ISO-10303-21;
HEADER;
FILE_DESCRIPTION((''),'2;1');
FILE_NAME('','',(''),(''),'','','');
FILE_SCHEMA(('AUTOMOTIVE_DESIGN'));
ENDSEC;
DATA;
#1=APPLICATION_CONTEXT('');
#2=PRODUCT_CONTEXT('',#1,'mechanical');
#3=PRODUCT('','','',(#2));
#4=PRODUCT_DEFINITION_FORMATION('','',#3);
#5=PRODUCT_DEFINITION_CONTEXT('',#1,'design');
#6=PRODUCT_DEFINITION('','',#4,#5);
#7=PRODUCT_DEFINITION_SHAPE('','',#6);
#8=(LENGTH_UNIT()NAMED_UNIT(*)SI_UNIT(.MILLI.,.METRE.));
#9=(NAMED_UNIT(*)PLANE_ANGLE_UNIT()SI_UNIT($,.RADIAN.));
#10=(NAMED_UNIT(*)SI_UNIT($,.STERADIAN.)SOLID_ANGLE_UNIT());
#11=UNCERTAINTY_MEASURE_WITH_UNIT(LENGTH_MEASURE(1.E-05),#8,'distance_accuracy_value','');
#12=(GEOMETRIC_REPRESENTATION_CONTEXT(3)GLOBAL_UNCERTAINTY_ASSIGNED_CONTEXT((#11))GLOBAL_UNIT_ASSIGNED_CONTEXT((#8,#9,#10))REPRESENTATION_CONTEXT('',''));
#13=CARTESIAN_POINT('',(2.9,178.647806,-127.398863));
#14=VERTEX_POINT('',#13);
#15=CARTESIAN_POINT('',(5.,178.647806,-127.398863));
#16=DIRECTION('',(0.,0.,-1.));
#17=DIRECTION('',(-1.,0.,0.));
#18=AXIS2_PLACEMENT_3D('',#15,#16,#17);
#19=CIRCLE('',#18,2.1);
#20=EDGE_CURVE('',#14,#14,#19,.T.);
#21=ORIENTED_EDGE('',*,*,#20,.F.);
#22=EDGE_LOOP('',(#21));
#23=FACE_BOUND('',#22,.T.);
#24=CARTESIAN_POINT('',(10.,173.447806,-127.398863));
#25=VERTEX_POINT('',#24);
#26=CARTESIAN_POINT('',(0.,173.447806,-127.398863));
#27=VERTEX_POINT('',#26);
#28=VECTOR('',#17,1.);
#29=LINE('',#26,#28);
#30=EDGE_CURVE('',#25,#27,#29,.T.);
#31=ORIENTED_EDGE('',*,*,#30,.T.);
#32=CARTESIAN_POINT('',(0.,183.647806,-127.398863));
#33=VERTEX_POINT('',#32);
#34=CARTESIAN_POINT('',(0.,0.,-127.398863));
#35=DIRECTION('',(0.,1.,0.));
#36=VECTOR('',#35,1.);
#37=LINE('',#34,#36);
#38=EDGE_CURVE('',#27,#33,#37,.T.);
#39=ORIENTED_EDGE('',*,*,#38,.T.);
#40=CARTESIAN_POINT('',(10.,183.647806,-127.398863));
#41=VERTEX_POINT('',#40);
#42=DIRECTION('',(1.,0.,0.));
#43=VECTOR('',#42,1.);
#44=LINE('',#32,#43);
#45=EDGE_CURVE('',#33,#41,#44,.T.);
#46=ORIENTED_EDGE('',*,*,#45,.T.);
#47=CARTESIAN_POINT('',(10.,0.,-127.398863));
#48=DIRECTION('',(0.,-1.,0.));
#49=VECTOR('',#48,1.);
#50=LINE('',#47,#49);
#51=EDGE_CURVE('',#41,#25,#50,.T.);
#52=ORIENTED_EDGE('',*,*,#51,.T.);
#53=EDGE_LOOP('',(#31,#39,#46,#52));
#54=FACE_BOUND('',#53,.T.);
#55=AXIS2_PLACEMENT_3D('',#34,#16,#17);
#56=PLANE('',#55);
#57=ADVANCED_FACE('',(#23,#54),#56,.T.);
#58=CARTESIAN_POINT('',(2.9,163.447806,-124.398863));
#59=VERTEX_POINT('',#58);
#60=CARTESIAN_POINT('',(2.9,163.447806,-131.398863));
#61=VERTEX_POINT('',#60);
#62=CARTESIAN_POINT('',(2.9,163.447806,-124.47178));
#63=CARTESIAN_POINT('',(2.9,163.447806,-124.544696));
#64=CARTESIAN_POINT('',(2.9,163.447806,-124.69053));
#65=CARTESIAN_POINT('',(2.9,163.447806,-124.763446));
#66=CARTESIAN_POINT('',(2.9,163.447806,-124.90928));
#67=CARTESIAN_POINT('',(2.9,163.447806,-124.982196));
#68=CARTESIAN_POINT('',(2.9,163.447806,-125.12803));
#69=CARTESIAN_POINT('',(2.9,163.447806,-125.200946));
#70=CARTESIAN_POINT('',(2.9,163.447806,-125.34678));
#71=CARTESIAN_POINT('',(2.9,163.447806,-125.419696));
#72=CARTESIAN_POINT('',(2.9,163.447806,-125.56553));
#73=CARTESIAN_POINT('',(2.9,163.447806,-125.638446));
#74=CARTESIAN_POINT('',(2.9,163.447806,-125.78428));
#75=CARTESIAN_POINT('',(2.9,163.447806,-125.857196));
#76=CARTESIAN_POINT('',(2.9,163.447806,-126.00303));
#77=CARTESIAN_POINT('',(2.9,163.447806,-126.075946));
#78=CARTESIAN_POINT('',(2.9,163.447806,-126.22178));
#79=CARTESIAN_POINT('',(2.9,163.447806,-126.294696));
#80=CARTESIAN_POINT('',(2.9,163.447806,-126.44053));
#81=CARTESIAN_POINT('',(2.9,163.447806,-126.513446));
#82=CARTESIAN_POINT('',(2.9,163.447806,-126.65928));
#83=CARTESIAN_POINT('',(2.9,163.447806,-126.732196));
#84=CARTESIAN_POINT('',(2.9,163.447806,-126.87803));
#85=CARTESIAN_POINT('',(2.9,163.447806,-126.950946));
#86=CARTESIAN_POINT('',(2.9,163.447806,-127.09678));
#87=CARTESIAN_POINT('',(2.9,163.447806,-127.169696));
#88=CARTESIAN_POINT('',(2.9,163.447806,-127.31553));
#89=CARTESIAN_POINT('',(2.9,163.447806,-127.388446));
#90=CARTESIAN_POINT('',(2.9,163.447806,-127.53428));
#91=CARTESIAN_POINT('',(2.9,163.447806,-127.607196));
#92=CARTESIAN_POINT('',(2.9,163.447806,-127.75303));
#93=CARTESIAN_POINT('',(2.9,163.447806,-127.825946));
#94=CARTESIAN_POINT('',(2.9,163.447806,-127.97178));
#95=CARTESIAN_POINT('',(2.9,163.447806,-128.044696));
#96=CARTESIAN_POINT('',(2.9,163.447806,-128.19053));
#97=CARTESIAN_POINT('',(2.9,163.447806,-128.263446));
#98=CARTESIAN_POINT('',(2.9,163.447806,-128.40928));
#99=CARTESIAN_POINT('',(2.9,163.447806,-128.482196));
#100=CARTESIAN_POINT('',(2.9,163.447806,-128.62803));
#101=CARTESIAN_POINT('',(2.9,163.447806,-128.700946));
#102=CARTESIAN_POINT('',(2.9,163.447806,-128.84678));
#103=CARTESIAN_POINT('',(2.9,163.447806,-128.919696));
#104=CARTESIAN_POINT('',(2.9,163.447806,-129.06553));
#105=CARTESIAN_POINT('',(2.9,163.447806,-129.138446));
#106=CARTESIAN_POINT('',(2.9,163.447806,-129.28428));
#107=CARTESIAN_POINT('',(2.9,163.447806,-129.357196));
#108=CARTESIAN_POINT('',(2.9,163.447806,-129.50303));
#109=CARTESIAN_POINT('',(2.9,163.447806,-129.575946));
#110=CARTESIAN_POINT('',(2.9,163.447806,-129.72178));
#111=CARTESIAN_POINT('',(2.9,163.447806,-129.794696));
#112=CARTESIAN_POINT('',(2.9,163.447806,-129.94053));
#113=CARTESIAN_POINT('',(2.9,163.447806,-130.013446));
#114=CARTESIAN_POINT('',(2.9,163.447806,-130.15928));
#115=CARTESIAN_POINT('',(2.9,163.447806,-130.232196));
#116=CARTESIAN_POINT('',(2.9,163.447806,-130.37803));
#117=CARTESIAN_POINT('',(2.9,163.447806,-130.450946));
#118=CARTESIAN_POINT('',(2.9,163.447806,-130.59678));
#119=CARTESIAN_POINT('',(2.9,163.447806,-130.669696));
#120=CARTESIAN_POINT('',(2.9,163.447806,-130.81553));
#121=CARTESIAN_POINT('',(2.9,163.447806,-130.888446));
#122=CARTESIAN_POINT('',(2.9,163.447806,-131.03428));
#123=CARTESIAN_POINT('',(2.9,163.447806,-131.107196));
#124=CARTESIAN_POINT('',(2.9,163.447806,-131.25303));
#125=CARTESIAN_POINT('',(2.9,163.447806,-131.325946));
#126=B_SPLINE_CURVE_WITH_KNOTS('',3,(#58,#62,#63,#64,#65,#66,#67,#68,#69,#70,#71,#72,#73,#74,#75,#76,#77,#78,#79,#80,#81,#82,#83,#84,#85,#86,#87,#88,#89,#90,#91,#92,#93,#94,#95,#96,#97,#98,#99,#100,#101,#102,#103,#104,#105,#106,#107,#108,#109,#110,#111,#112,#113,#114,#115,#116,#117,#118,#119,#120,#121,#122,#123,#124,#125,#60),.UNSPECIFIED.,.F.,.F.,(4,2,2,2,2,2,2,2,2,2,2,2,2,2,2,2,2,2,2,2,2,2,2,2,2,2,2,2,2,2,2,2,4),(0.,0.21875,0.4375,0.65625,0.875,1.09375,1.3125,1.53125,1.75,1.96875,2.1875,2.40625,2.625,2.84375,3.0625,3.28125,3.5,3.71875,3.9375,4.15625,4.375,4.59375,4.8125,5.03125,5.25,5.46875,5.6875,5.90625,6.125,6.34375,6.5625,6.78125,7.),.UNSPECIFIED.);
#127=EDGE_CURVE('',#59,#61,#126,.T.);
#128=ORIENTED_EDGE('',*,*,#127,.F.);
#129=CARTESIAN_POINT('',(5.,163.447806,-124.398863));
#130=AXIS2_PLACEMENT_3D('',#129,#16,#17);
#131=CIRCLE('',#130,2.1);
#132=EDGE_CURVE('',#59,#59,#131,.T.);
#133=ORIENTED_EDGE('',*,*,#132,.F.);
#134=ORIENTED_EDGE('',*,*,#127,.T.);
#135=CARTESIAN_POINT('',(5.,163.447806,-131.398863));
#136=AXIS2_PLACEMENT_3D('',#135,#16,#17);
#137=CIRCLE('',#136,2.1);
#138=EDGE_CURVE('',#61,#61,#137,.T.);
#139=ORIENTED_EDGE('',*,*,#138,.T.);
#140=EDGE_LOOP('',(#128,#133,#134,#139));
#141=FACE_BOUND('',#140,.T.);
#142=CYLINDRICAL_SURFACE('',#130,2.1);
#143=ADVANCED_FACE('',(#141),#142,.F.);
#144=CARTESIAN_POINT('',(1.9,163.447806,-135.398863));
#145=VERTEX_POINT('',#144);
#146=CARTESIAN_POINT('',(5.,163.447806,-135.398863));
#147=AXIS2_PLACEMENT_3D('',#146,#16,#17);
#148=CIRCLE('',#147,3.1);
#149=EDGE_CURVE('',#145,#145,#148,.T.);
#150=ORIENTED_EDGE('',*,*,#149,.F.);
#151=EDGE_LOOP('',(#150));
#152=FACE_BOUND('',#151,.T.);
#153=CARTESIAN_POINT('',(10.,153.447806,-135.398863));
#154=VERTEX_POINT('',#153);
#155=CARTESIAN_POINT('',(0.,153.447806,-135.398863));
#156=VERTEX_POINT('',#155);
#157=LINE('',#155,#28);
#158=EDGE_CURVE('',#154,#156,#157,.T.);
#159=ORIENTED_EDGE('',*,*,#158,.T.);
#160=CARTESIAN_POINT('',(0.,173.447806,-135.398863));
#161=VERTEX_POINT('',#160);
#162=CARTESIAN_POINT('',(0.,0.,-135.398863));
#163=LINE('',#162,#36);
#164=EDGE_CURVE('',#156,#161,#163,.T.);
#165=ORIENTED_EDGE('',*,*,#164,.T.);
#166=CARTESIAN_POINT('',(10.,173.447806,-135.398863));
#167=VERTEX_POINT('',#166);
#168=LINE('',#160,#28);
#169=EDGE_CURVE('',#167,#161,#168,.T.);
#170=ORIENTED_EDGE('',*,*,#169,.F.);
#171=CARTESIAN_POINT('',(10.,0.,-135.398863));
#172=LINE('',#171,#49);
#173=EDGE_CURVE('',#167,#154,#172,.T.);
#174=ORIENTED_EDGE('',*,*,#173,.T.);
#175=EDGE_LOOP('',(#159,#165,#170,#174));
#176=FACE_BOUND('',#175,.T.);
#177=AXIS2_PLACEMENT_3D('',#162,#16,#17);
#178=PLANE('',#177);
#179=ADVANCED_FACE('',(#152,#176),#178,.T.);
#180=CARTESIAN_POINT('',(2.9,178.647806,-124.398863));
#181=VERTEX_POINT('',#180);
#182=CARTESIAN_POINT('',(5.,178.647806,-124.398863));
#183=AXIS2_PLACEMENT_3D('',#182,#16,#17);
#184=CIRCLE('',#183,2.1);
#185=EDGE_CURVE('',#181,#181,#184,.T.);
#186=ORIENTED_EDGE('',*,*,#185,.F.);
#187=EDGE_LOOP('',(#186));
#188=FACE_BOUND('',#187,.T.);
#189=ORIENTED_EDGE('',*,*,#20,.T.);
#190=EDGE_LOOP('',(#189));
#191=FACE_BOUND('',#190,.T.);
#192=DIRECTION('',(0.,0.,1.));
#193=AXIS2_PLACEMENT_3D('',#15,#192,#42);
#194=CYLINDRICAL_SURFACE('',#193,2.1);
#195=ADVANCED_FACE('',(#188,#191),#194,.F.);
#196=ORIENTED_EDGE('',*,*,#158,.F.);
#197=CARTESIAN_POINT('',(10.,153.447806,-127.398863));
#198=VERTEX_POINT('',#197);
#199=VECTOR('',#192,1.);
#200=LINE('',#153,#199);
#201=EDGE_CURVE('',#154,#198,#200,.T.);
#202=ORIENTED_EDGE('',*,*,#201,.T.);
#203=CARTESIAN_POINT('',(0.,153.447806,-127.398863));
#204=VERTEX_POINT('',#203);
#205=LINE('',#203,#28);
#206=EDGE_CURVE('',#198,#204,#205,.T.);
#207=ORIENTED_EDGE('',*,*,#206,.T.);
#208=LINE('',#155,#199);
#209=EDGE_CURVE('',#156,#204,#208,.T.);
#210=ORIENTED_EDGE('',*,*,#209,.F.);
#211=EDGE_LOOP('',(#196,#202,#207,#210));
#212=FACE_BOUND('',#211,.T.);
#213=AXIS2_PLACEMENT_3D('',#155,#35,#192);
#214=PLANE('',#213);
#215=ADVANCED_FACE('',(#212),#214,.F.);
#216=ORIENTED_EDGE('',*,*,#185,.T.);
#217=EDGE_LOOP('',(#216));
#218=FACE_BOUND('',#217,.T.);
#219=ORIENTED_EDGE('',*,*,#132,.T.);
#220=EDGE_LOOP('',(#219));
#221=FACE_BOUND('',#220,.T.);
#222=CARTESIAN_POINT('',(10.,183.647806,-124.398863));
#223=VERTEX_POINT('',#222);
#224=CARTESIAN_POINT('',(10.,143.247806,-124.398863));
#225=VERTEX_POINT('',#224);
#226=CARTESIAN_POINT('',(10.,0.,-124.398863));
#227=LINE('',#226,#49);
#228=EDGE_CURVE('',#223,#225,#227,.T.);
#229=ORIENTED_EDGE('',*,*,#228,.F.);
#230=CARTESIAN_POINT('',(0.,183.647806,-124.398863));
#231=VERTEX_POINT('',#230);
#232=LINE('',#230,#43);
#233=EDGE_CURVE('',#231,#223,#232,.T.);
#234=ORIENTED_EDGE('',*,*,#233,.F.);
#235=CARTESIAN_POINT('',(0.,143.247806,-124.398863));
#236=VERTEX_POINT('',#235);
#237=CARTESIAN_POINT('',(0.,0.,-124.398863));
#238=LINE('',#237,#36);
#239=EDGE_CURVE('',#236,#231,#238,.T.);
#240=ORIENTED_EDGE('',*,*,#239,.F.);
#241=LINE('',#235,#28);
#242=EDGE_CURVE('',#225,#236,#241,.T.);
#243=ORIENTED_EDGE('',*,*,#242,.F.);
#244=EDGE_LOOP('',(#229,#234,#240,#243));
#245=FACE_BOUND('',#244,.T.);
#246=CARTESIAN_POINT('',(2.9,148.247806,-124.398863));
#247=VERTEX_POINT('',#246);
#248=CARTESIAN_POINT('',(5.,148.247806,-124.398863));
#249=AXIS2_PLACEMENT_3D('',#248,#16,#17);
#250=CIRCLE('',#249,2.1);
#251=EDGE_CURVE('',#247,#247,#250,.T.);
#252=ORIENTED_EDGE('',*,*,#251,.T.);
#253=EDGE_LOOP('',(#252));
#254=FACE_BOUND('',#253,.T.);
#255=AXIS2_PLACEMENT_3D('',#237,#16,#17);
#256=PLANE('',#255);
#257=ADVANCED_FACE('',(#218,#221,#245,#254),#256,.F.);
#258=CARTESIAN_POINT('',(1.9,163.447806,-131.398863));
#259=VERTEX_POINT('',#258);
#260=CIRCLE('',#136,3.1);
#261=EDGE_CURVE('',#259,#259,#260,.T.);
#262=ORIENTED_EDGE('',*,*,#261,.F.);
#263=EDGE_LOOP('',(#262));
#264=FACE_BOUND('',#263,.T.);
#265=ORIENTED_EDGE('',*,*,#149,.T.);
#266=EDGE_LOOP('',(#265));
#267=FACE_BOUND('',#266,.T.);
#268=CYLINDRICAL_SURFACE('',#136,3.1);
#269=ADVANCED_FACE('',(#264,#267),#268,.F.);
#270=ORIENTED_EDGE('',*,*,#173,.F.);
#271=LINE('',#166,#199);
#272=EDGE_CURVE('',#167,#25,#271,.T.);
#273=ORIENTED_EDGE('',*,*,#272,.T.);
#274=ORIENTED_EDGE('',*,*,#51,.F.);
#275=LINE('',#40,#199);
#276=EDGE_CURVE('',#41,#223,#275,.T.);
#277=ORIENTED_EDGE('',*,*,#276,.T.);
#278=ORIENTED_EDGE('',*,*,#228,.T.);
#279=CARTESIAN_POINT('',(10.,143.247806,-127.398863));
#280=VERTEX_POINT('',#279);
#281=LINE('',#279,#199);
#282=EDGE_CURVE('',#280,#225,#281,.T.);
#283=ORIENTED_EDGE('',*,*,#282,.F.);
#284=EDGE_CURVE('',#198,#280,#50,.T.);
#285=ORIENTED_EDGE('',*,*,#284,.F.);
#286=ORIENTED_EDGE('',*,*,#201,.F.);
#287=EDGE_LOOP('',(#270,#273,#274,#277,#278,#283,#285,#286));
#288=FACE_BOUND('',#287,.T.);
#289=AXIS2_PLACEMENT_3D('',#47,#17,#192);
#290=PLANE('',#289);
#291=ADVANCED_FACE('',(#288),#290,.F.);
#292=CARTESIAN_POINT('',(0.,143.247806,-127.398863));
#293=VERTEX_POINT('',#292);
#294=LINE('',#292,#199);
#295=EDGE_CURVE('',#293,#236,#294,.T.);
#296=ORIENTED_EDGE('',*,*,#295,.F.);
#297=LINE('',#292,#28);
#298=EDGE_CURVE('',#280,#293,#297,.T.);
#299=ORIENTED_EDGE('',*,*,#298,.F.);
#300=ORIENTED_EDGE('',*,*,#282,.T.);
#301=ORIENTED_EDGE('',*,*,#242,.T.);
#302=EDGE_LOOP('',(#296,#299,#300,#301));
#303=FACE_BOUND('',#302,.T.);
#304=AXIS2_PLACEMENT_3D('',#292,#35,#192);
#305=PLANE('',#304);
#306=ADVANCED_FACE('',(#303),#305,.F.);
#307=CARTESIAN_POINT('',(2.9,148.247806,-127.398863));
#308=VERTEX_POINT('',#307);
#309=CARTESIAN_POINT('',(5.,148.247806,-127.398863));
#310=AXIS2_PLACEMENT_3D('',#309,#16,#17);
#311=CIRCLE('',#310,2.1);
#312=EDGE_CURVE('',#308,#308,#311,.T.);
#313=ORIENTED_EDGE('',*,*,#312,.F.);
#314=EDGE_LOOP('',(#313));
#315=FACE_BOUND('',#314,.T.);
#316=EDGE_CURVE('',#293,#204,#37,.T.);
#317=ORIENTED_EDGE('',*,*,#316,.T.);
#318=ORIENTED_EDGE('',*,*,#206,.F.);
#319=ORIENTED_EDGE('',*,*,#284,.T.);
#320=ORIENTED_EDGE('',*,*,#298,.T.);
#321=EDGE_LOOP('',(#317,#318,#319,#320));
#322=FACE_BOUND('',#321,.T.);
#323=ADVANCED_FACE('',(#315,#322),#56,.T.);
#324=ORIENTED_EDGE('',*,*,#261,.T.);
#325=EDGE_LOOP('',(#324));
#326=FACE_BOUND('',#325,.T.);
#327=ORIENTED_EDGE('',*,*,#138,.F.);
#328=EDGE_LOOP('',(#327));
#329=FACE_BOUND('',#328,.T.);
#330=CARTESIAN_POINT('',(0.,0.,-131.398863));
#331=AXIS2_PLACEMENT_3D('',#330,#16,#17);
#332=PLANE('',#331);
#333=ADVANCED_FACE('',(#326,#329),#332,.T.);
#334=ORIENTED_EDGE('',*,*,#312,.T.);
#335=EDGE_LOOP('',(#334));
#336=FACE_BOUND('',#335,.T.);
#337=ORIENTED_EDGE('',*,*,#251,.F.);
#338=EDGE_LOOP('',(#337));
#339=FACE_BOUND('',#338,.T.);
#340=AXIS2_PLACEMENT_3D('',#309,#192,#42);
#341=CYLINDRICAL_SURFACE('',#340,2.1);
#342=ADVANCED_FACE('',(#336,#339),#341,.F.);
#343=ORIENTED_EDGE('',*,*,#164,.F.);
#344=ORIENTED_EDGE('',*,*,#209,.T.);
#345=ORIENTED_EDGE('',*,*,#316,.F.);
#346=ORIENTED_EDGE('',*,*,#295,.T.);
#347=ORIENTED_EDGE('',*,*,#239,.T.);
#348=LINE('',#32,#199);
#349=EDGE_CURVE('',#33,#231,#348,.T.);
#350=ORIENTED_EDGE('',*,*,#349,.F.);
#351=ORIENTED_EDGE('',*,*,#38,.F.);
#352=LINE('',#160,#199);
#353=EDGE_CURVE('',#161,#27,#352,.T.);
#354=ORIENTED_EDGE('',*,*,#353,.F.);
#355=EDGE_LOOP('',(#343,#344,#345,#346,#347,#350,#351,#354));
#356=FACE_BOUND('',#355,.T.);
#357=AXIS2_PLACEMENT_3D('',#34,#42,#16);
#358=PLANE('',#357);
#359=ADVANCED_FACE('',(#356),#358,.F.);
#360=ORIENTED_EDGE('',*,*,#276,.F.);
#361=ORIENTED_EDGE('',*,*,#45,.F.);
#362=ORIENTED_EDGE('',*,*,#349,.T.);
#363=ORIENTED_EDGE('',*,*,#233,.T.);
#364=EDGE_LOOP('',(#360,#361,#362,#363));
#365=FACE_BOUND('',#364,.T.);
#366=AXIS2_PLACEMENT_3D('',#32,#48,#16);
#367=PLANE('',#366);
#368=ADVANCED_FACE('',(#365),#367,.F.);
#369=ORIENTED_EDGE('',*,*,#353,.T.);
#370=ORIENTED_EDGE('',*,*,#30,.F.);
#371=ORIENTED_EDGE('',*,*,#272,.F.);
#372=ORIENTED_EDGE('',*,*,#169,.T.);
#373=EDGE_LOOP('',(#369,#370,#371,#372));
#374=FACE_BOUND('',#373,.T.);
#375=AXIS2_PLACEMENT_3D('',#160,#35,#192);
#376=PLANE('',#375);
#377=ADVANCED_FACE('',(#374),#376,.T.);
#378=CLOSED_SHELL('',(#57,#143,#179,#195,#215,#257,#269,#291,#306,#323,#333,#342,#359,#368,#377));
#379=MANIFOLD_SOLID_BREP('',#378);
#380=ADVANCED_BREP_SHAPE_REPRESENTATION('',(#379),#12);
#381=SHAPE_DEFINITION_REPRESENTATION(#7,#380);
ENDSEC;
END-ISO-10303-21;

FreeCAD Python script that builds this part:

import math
import FreeCAD as App
import Part
import Sketcher

V = App.Vector


def add_polygon(sketch, points):
    """Adds a closed chain of lines whose ends are joined by coincident constraints."""
    first, n = sketch.GeometryCount, len(points)
    for a, b in zip(points, points[1:] + points[:1]):
        sketch.addGeometry(Part.LineSegment(App.Vector(*a, 0), App.Vector(*b, 0)), False)
    for i in range(n):
        sketch.addConstraint(Sketcher.Constraint("Coincident", first + i, 2, first + (i + 1) % n, 1))

doc = App.newDocument("Part")
body = doc.addObject("PartDesign::Body", "Body")

# Sketch on XY plane
sketch1 = body.newObject("Sketcher::SketchObject", "Sketch")
sketch1.AttachmentSupport = (doc.getObject("XY_Plane"), [""])
sketch1.MapMode = "FlatFace"
sketch1.AttachmentOffset = App.Placement(V(0, 0, -124.398863), App.Rotation())
add_polygon(sketch1, [(10, 183.6), (10, 143.2), (0, 143.2), (0, 183.6)])  # lines 0-3
sketch1.addGeometry(Part.Circle(V(5, 178.6, 0), V(0, 0, 1), 2.1), False)  # 4
sketch1.addGeometry(Part.Circle(V(5, 148.2, 0), V(0, 0, 1), 2.1), False)  # 5
sketch1.addConstraint(Sketcher.Constraint("Vertical", 0))
sketch1.addConstraint(Sketcher.Constraint("Horizontal", 1))
sketch1.addConstraint(Sketcher.Constraint("Vertical", 2))
sketch1.addConstraint(Sketcher.Constraint("Horizontal", 3))
sketch1.addConstraint(Sketcher.Constraint("Equal", 4, 5))
sketch1.addConstraint(Sketcher.Constraint("PointOnObject", 1, 2, -2))
sketch1.addConstraint(Sketcher.Constraint("Vertical", 4, 3, 5, 3))
sketch1.addConstraint(Sketcher.Constraint("Diameter", 4, 4.2))
sketch1.addConstraint(Sketcher.Constraint("DistanceX", 1, 2, 1, 1, 10.0))
sketch1.addConstraint(Sketcher.Constraint("DistanceY", 0, 2, 0, 1, 40.4))
sketch1.addConstraint(Sketcher.Constraint("DistanceX", -1, 1, 4, 3, 5.0))
sketch1.addConstraint(Sketcher.Constraint("DistanceY", 0, 2, 5, 3, 5.0))
sketch1.addConstraint(Sketcher.Constraint("DistanceY", 4, 3, 2, 2, 5.0))
sketch1.addConstraint(Sketcher.Constraint("DistanceY", -1, 1, 4, 3, 178.647806))
pad1 = body.newObject("PartDesign::Pad", "Pad")
pad1.Profile = sketch1
pad1.Length = 3
pad1.Reversed = True

# Sketch on XY plane
sketch2 = body.newObject("Sketcher::SketchObject", "Sketch001")
sketch2.AttachmentSupport = (doc.getObject("XY_Plane"), [""])
sketch2.MapMode = "FlatFace"
sketch2.AttachmentOffset = App.Placement(V(0, 0, -127.398863), App.Rotation())
add_polygon(sketch2, [(0, 153), (0, 173), (10, 173), (10, 153)])  # lines 0-3
sketch2.addConstraint(Sketcher.Constraint("Vertical", 0))
sketch2.addConstraint(Sketcher.Constraint("Horizontal", 1))
sketch2.addConstraint(Sketcher.Constraint("Vertical", 2))
sketch2.addConstraint(Sketcher.Constraint("Horizontal", 3))
sketch2.addConstraint(Sketcher.Constraint("PointOnObject", 0, 2, -2))
sketch2.addConstraint(Sketcher.Constraint("DistanceX", 1, 1, 1, 2, 10.0))
sketch2.addConstraint(Sketcher.Constraint("DistanceY", 0, 1, 0, 2, 20.0))
sketch2.addConstraint(Sketcher.Constraint("DistanceY", -1, 1, 0, 2, 173.447806))
pad2 = body.newObject("PartDesign::Pad", "Pad001")
pad2.Profile = sketch2
pad2.Length = 8
pad2.Reversed = True

# Sketch on XY plane
sketch3 = body.newObject("Sketcher::SketchObject", "Sketch002")
sketch3.AttachmentSupport = (doc.getObject("XY_Plane"), [""])
sketch3.MapMode = "FlatFace"
sketch3.AttachmentOffset = App.Placement(V(0, 0, -135.398863), App.Rotation())
sketch3.addGeometry(Part.ArcOfCircle(Part.Circle(V(5, 163.4, 0), V(0, 0, 1), 3.1), math.radians(90), math.radians(180)), False)
sketch3.addGeometry(Part.ArcOfCircle(Part.Circle(V(5, 163.4, 0), V(0, 0, 1), 3.1), math.radians(-90), math.radians(90)), False)
sketch3.addGeometry(Part.ArcOfCircle(Part.Circle(V(5, 163.4, 0), V(0, 0, 1), 3.1), math.radians(180), math.radians(270)), False)
sketch3.addConstraint(Sketcher.Constraint("Tangent", 0, 1, 1, 2))
sketch3.addConstraint(Sketcher.Constraint("Tangent", 1, 1, 2, 2))
sketch3.addConstraint(Sketcher.Constraint("Tangent", 2, 1, 0, 2))
sketch3.addConstraint(Sketcher.Constraint("Horizontal", 1, 3, 2, 1))
sketch3.addConstraint(Sketcher.Constraint("Vertical", 2, 3, 0, 1))
sketch3.addConstraint(Sketcher.Constraint("Vertical", 0, 1, 1, 1))
sketch3.addConstraint(Sketcher.Constraint("Radius", 0, 3.1))
sketch3.addConstraint(Sketcher.Constraint("DistanceX", -1, 1, 0, 3, 5.0))
sketch3.addConstraint(Sketcher.Constraint("DistanceY", -1, 1, 0, 3, 163.447806))
pocket1 = body.newObject("PartDesign::Pocket", "Pocket")
pocket1.Profile = sketch3
pocket1.Length = 4
pocket1.Reversed = True

# Sketch on XY plane
sketch4 = body.newObject("Sketcher::SketchObject", "Sketch003")
sketch4.AttachmentSupport = (doc.getObject("XY_Plane"), [""])
sketch4.MapMode = "FlatFace"
sketch4.AttachmentOffset = App.Placement(V(0, 0, -131.398863), App.Rotation())
sketch4.addGeometry(Part.Circle(V(5, 163.4, 0), V(0, 0, 1), 2.1), False)
sketch4.addConstraint(Sketcher.Constraint("Diameter", 0, 4.2))
sketch4.addConstraint(Sketcher.Constraint("DistanceX", -1, 1, 0, 3, 5.0))
sketch4.addConstraint(Sketcher.Constraint("DistanceY", -1, 1, 0, 3, 163.447806))
pocket2 = body.newObject("PartDesign::Pocket", "Pocket001")
pocket2.Profile = sketch4
pocket2.Type = "ThroughAll"
pocket2.Reversed = True

doc.recompute()
